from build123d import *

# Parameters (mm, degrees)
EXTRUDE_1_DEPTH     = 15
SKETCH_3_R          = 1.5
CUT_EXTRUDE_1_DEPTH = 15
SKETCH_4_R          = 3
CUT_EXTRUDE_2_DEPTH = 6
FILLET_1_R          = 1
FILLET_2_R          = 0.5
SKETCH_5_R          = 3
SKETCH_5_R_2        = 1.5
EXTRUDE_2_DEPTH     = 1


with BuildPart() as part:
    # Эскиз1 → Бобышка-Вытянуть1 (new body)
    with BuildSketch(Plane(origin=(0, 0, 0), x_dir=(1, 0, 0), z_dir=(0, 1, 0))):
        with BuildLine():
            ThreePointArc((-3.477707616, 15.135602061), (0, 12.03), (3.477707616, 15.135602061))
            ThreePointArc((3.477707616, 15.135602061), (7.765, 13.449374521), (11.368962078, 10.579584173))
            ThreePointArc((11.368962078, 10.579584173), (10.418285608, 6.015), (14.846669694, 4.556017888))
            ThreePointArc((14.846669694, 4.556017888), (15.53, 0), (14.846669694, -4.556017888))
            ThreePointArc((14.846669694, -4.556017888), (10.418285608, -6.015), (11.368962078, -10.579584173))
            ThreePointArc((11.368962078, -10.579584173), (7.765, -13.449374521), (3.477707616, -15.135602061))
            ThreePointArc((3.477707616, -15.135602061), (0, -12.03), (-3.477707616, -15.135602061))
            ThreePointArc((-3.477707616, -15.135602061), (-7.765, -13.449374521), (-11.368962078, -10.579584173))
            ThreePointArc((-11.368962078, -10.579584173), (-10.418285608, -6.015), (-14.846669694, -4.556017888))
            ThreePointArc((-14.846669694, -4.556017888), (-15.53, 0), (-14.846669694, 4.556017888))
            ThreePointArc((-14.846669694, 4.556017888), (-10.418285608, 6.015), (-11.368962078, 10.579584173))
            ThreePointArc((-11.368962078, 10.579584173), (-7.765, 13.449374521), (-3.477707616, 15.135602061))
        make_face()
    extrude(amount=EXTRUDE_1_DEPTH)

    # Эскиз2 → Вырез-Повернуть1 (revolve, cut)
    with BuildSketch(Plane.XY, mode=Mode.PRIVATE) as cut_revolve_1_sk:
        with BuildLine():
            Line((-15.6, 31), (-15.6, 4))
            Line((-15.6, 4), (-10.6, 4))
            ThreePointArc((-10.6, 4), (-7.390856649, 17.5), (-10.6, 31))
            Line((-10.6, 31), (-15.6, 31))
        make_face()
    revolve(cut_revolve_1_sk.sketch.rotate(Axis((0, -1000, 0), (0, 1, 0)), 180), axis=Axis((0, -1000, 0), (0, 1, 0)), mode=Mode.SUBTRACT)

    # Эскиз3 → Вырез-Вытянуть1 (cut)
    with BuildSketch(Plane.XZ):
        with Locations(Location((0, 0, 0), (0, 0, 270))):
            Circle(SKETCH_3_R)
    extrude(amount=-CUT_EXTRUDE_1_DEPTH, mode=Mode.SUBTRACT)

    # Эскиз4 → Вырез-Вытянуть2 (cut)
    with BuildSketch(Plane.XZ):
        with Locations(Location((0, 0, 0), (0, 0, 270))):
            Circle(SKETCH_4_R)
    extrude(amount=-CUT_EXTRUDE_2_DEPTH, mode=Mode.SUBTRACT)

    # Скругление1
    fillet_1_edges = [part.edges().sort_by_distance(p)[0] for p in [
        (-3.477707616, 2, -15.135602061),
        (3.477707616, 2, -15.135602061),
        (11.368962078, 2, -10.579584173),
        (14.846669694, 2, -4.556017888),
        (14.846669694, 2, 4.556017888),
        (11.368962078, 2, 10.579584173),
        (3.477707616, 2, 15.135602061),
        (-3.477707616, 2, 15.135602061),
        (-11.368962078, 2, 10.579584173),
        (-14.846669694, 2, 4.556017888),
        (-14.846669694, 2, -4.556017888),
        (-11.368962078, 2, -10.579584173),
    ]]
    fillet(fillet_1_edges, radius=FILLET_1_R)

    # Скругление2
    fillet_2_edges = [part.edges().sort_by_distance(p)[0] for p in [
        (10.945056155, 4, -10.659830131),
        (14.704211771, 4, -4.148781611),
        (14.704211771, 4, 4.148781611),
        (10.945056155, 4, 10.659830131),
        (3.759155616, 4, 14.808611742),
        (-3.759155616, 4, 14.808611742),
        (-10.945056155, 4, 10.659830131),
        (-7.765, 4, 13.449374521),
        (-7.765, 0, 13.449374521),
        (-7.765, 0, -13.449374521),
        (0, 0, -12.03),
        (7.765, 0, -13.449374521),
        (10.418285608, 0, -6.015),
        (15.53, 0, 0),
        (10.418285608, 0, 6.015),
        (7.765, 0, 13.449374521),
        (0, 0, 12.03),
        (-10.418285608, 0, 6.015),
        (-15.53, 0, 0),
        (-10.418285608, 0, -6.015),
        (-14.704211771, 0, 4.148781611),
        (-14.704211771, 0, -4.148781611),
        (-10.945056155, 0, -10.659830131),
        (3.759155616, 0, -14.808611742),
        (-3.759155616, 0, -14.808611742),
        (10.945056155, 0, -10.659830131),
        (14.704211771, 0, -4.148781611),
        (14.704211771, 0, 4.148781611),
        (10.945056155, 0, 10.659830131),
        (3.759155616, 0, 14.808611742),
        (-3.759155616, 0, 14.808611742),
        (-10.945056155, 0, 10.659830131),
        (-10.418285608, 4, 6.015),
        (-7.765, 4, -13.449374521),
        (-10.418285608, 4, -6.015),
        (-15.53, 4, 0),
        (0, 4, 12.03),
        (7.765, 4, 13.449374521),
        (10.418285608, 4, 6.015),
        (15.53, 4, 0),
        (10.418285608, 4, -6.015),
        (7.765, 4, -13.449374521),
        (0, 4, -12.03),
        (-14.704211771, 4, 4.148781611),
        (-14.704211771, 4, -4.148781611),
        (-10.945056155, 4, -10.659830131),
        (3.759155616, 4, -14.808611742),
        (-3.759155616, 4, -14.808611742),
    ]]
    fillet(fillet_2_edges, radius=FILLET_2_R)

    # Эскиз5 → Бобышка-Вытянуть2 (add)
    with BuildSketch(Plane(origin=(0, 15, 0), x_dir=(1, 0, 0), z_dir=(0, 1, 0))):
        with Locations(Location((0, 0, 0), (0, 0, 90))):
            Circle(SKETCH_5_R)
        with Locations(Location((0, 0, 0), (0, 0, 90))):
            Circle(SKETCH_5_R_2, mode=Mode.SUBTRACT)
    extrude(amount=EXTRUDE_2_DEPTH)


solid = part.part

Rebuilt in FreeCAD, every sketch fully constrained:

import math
import FreeCAD as App
import Part
import Sketcher

V = App.Vector
Q = App.Units.Quantity


def edges_at(feature, points):
    """Names of the edges that pass closest to the given points."""
    edges = feature.Shape.Edges
    near = lambda p: min(range(len(edges)), key=lambda i: edges[i].distToShape(Part.Vertex(*p))[0])
    return sorted({f"Edge{near(p) + 1}" for p in points})

doc = App.newDocument("Part")
body = doc.addObject("PartDesign::Body", "Body")

# Sketch on XZ plane
sketch1 = doc.addObject("Sketcher::SketchObject", "Sketch")
body.addObject(sketch1)
sketch1.AttachmentSupport = (doc.XZ_Plane, [""])
sketch1.MapMode = "FlatFace"
sketch1.addGeometry([
    Part.ArcOfCircle(Part.Circle(V(0, -15.53, 0), V(0, 0, 1), 3.5), math.radians(6.470125), math.radians(173.529875)),  # 0
    Part.ArcOfCircle(Part.Circle(V(0, 0, 0), V(0, 0, 1), 15.53), math.radians(-137.059751), math.radians(-102.940249)),  # 1
    Part.ArcOfCircle(Part.Circle(V(-13.449375, -7.765, 0), V(0, 0, 1), 3.5), math.radians(-53.529875), math.radians(113.529875)),  # 2
    Part.ArcOfCircle(Part.Circle(V(0, 0, 0), V(0, 0, 1), 15.53), math.radians(162.940249), math.radians(197.059751)),  # 3
    Part.ArcOfCircle(Part.Circle(V(-13.449375, 7.765, 0), V(0, 0, 1), 3.5), math.radians(-113.529875), math.radians(53.529875)),  # 4
    Part.ArcOfCircle(Part.Circle(V(0, 0, 0), V(0, 0, 1), 15.53), math.radians(102.940249), math.radians(137.059751)),  # 5
    Part.ArcOfCircle(Part.Circle(V(0, 15.53, 0), V(0, 0, 1), 3.5), math.radians(-173.529875), math.radians(-6.470125)),  # 6
    Part.ArcOfCircle(Part.Circle(V(0, 0, 0), V(0, 0, 1), 15.53), math.radians(42.940249), math.radians(77.059751)),  # 7
    Part.ArcOfCircle(Part.Circle(V(13.449375, 7.765, 0), V(0, 0, 1), 3.5), math.radians(126.470125), math.radians(293.529875)),  # 8
    Part.ArcOfCircle(Part.Circle(V(0, 0, 0), V(0, 0, 1), 15.53), math.radians(-17.059751), math.radians(17.059751)),  # 9
    Part.ArcOfCircle(Part.Circle(V(13.449375, -7.765, 0), V(0, 0, 1), 3.5), math.radians(66.470125), math.radians(233.529875)),  # 10
    Part.ArcOfCircle(Part.Circle(V(0, 0, 0), V(0, 0, 1), 15.53), math.radians(-77.059751), math.radians(-42.940249)),  # 11
], False)
sketch1.addConstraint([
    Sketcher.Constraint("Coincident", 0, 2, 1, 2),
    Sketcher.Constraint("Coincident", 1, 1, 2, 1),
    Sketcher.Constraint("Coincident", 2, 2, 3, 2),
    Sketcher.Constraint("Coincident", 3, 1, 4, 1),
    Sketcher.Constraint("Coincident", 4, 2, 5, 2),
    Sketcher.Constraint("Coincident", 5, 1, 6, 1),
    Sketcher.Constraint("Coincident", 6, 2, 7, 2),
    Sketcher.Constraint("Coincident", 7, 1, 8, 1),
    Sketcher.Constraint("Coincident", 8, 2, 9, 2),
    Sketcher.Constraint("Coincident", 9, 1, 10, 1),
    Sketcher.Constraint("Coincident", 10, 2, 11, 2),
    Sketcher.Constraint("Coincident", 11, 1, 0, 1),
    Sketcher.Constraint("Coincident", 1, 3, -1, 1),
    Sketcher.Constraint("Coincident", 3, 3, -1, 1),
    Sketcher.Constraint("Coincident", 5, 3, -1, 1),
    Sketcher.Constraint("Coincident", 7, 3, -1, 1),
    Sketcher.Constraint("Coincident", 9, 3, -1, 1),
    Sketcher.Constraint("Coincident", 11, 3, -1, 1),
    Sketcher.Constraint("Equal", 0, 2),
    Sketcher.Constraint("Equal", 1, 3),
    Sketcher.Constraint("Equal", 2, 4),
    Sketcher.Constraint("Equal", 3, 5),
    Sketcher.Constraint("Equal", 4, 6),
    Sketcher.Constraint("Equal", 5, 7),
    Sketcher.Constraint("Equal", 6, 8),
    Sketcher.Constraint("Equal", 7, 9),
    Sketcher.Constraint("Equal", 8, 10),
    Sketcher.Constraint("Equal", 9, 11),
    Sketcher.Constraint("Symmetric", 0, 3, 6, 3, -1, 1),
    Sketcher.Constraint("Symmetric", 2, 3, 8, 3, -1, 1),
    Sketcher.Constraint("Symmetric", 4, 3, 10, 3, -1, 1),
    Sketcher.Constraint("Symmetric", 4, 3, 8, 3, -2),
    Sketcher.Constraint("PointOnObject", 0, 3, -2),
    Sketcher.Constraint("Radius", 0, Q("3.5 mm")),
    Sketcher.Constraint("Radius", 1, Q("15.53 mm")),
    Sketcher.Constraint("DistanceY", 0, 3, -1, 1, Q("15.53 mm")),
    Sketcher.Constraint("DistanceY", 2, 3, 4, 3, Q("15.53 mm")),
    Sketcher.Constraint("DistanceX", 2, 2, -1, 1, Q("14.84667 mm")),
])
pad1 = doc.addObject("PartDesign::Pad", "Pad")
body.addObject(pad1)
pad1.Profile = sketch1
pad1.Length = 15
pad1.Reversed = True

# Sketch on XY plane
sketch2 = doc.addObject("Sketcher::SketchObject", "Sketch001")
body.addObject(sketch2)
sketch2.AttachmentSupport = (doc.XY_Plane, [""])
sketch2.MapMode = "FlatFace"
sketch2.addGeometry([
    Part.LineSegment(V(-15.6, 31, 0), V(-15.6, 4, 0)),
    Part.LineSegment(V(-15.6, 4, 0), V(-10.6, 4, 0)),
    Part.ArcOfCircle(Part.Circle(V(-37.390857, 17.5, 0), V(0, 0, 1), 30), math.radians(-26.743684), math.radians(26.743684)),
    Part.LineSegment(V(-10.6, 31, 0), V(-15.6, 31, 0)),
], False)
sketch2.addConstraint([
    Sketcher.Constraint("Coincident", 0, 2, 1, 1),
    Sketcher.Constraint("Coincident", 1, 2, 2, 1),
    Sketcher.Constraint("Coincident", 2, 2, 3, 1),
    Sketcher.Constraint("Coincident", 3, 2, 0, 1),
    Sketcher.Constraint("Vertical", 0),
    Sketcher.Constraint("Horizontal", 1),
    Sketcher.Constraint("Horizontal", 3),
    Sketcher.Constraint("Vertical", 1, 2, 2, 2),
    Sketcher.Constraint("Radius", 2, Q("30 mm")),
    Sketcher.Constraint("DistanceX", 1, 1, 1, 2, Q("5 mm")),
    Sketcher.Constraint("DistanceY", 0, 2, 0, 1, Q("27 mm")),
    Sketcher.Constraint("DistanceY", -1, 1, 0, 2, Q("4 mm")),
    Sketcher.Constraint("DistanceX", 0, 2, -1, 1, Q("15.6 mm")),
])
groove = doc.addObject("PartDesign::Groove", "Groove")
body.addObject(groove)
groove.Profile = sketch2
groove.ReferenceAxis = (sketch2, ["V_Axis"])
groove.Angle = 360

# Sketch on XZ plane
sketch3 = doc.addObject("Sketcher::SketchObject", "Sketch002")
body.addObject(sketch3)
sketch3.AttachmentSupport = (doc.XZ_Plane, [""])
sketch3.MapMode = "FlatFace"
sketch3.addGeometry(Part.Circle(V(0, 0, 0), V(0, 0, 1), 1.5), False)
sketch3.addConstraint([
    Sketcher.Constraint("Coincident", 0, 3, -1, 1),
    Sketcher.Constraint("Diameter", 0, Q("3 mm")),
])
pocket1 = doc.addObject("PartDesign::Pocket", "Pocket")
body.addObject(pocket1)
pocket1.Profile = sketch3
pocket1.Length = 15

# Sketch on XZ plane
sketch4 = doc.addObject("Sketcher::SketchObject", "Sketch003")
body.addObject(sketch4)
sketch4.AttachmentSupport = (doc.XZ_Plane, [""])
sketch4.MapMode = "FlatFace"
sketch4.addGeometry(Part.Circle(V(0, 0, 0), V(0, 0, 1), 3), False)
sketch4.addConstraint([
    Sketcher.Constraint("Coincident", 0, 3, -1, 1),
    Sketcher.Constraint("Diameter", 0, Q("6 mm")),
])
pocket2 = doc.addObject("PartDesign::Pocket", "Pocket001")
body.addObject(pocket2)
pocket2.Profile = sketch4
pocket2.Length = 6
doc.recompute()

fillet = doc.addObject("PartDesign::Fillet", "Fillet")
body.addObject(fillet)
fillet.Base = (pocket2, edges_at(pocket2, [
    (-3.478, 2, -15.136),
    (3.478, 2, -15.136),
    (11.369, 2, -10.58),
    (14.847, 2, -4.556),
    (14.847, 2, 4.556),
    (11.369, 2, 10.58),
    (3.478, 2, 15.136),
    (-3.478, 2, 15.136),
    (-11.369, 2, 10.58),
    (-14.847, 2, 4.556),
    (-14.847, 2, -4.556),
    (-11.369, 2, -10.58),
]))
fillet.Radius = 1
doc.recompute()

fillet2 = doc.addObject("PartDesign::Fillet", "Fillet001")
body.addObject(fillet2)
fillet2.Base = (fillet, edges_at(fillet, [
    (10.945, 4, -10.66),
    (14.704, 4, -4.149),
    (14.704, 4, 4.149),
    (10.945, 4, 10.66),
    (3.759, 4, 14.809),
    (-3.759, 4, 14.809),
    (-10.945, 4, 10.66),
    (-7.765, 4, 13.449),
    (-7.765, 0, 13.449),
    (-7.765, 0, -13.449),
    (0, 0, -12.03),
    (7.765, 0, -13.449),
    (10.418, 0, -6.015),
    (15.53, 0, 0),
    (10.418, 0, 6.015),
    (7.765, 0, 13.449),
    (0, 0, 12.03),
    (-10.418, 0, 6.015),
    (-15.53, 0, 0),
    (-10.418, 0, -6.015),
    (-14.704, 0, 4.149),
    (-14.704, 0, -4.149),
    (-10.945, 0, -10.66),
    (3.759, 0, -14.809),
    (-3.759, 0, -14.809),
    (10.945, 0, -10.66),
    (14.704, 0, -4.149),
    (14.704, 0, 4.149),
    (10.945, 0, 10.66),
    (3.759, 0, 14.809),
    (-3.759, 0, 14.809),
    (-10.945, 0, 10.66),
    (-10.418, 4, 6.015),
    (-7.765, 4, -13.449),
    (-10.418, 4, -6.015),
    (-15.53, 4, 0),
    (0, 4, 12.03),
    (7.765, 4, 13.449),
    (10.418, 4, 6.015),
    (15.53, 4, 0),
    (10.418, 4, -6.015),
    (7.765, 4, -13.449),
    (0, 4, -12.03),
    (-14.704, 4, 4.149),
    (-14.704, 4, -4.149),
    (-10.945, 4, -10.66),
    (3.759, 4, -14.809),
    (-3.759, 4, -14.809),
]))
fillet2.Radius = 0.5

# Sketch on XZ plane
sketch5 = doc.addObject("Sketcher::SketchObject", "Sketch004")
body.addObject(sketch5)
sketch5.AttachmentSupport = (doc.XZ_Plane, [""])
sketch5.MapMode = "FlatFace"
sketch5.AttachmentOffset = App.Placement(V(0, 0, -15), App.Rotation())
sketch5.addGeometry([
    Part.Circle(V(0, 0, 0), V(0, 0, 1), 3),
    Part.Circle(V(0, 0, 0), V(0, 0, 1), 1.5),
], False)
sketch5.addConstraint([
    Sketcher.Constraint("Coincident", 0, 3, -1, 1),
    Sketcher.Constraint("Coincident", 1, 3, -1, 1),
    Sketcher.Constraint("Diameter", 0, Q("6 mm")),
    Sketcher.Constraint("Diameter", 1, Q("3 mm")),
])
pad2 = doc.addObject("PartDesign::Pad", "Pad001")
body.addObject(pad2)
pad2.Profile = sketch5
pad2.Length = 1
pad2.Reversed = True

doc.recompute()
